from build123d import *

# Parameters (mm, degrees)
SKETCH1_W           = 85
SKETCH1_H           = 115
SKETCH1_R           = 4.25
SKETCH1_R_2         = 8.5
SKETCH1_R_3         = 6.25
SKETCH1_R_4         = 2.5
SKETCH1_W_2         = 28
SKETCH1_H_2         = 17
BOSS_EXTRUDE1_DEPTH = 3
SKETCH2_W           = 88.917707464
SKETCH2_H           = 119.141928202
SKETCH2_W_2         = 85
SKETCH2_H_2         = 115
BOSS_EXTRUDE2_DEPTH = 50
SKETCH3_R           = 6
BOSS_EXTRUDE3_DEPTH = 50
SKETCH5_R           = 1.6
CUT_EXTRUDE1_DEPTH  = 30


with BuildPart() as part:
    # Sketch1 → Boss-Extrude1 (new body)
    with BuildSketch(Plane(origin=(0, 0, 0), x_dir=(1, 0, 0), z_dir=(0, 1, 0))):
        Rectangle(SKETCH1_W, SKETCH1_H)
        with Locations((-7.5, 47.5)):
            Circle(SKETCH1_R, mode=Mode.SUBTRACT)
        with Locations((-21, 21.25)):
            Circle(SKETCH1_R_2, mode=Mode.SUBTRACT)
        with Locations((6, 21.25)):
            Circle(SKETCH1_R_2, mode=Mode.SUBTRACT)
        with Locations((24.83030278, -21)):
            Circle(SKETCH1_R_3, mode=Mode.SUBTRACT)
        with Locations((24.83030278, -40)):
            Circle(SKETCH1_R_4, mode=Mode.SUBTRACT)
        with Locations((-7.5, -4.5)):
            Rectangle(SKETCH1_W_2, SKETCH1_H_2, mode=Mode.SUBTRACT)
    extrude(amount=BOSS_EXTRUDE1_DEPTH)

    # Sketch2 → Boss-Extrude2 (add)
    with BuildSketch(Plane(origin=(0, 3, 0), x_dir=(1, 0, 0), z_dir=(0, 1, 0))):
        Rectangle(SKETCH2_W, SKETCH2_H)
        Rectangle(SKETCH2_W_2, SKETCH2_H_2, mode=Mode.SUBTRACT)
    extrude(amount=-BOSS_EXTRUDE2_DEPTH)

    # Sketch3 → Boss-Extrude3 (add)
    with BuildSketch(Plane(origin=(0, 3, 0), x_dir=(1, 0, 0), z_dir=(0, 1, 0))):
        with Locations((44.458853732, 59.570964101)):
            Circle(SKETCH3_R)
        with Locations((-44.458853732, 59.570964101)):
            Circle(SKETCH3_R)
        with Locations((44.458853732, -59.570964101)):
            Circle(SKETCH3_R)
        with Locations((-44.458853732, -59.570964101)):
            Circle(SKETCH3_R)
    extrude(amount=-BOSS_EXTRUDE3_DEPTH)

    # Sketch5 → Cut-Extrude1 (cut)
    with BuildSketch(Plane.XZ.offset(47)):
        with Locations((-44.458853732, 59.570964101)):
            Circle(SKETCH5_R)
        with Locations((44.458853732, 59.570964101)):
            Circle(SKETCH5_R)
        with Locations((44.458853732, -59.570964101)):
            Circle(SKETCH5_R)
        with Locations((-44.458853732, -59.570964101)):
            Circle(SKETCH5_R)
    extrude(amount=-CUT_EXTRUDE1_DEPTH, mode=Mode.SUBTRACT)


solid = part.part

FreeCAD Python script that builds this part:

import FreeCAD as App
import Part
import Sketcher
from FreeCAD import Vector
Q = App.Units.Quantity

doc = App.newDocument("Part")
params = doc.addObject("Spreadsheet::Sheet", "Params")
for row, (alias, value) in enumerate([
    ("sketch1_diameter", "5 mm"),
    ("sketch1_diameter2", "17 mm"),
    ("sketch1_diameter3", "12.5 mm"),
    ("sketch1_diameter4", "8.5 mm"),
    ("sketch1_width", "85 mm"),
    ("pad1_length", "3 mm"),
    ("sketch2_width", "85 mm"),
    ("sketch2_height", "115 mm"),
    ("pad2_length", "50 mm"),
    ("sketch3_diameter", "12 mm"),
    ("pad3_length", "50 mm"),
    ("sketch4_diameter", "3.2 mm"),
    ("pocket1_length", "30 mm"),
], start=1):
    params.set(f"A{row}", alias)
    params.set(f"B{row}", "=" + value)
    params.setAlias(f"B{row}", alias)

body = doc.addObject("PartDesign::Body", "Body")

sketch1 = doc.addObject("Sketcher::SketchObject", "Sketch")
body.addObject(sketch1)
sketch1.AttachmentSupport = (doc.XZ_Plane, [""])
sketch1.MapMode = "FlatFace"
sketch1.addGeometry([
    Part.LineSegment(Vector(-42.5, -57.5, 0), Vector(-42.5, 57.5, 0)),
    Part.LineSegment(Vector(-42.5, 57.5, 0), Vector(42.5, 57.5, 0)),
    Part.LineSegment(Vector(42.5, 57.5, 0), Vector(42.5, -57.5, 0)),
    Part.LineSegment(Vector(42.5, -57.5, 0), Vector(-42.5, -57.5, 0)),
    Part.LineSegment(Vector(6.5, 13, 0), Vector(-21.5, 13, 0)),
    Part.LineSegment(Vector(-21.5, 13, 0), Vector(-21.5, -4, 0)),
    Part.LineSegment(Vector(-21.5, -4, 0), Vector(6.5, -4, 0)),
    Part.LineSegment(Vector(6.5, -4, 0), Vector(6.5, 13, 0)),
    Part.Circle(Vector(24.8, 40, 0), Vector(0, 0, 1), 2.5),
    Part.Circle(Vector(24.8, 21, 0), Vector(0, 0, 1), 6.2),
    Part.Circle(Vector(-21, -21.2, 0), Vector(0, 0, 1), 8.5),
    Part.Circle(Vector(-7.5, -47.5, 0), Vector(0, 0, 1), 4.2),
    Part.Circle(Vector(6, -21.2, 0), Vector(0, 0, 1), 8.5),
], False)
sketch1.addConstraint([
    Sketcher.Constraint("Coincident", 0, 2, 1, 1),
    Sketcher.Constraint("Coincident", 1, 2, 2, 1),
    Sketcher.Constraint("Coincident", 2, 2, 3, 1),
    Sketcher.Constraint("Coincident", 3, 2, 0, 1),
    Sketcher.Constraint("Coincident", 4, 2, 5, 1),
    Sketcher.Constraint("Coincident", 5, 2, 6, 1),
    Sketcher.Constraint("Coincident", 6, 2, 7, 1),
    Sketcher.Constraint("Coincident", 7, 2, 4, 1),
    Sketcher.Constraint("Vertical", 0),
    Sketcher.Constraint("Horizontal", 1),
    Sketcher.Constraint("Vertical", 2),
    Sketcher.Constraint("Horizontal", 3),
    Sketcher.Constraint("Horizontal", 4),
    Sketcher.Constraint("Vertical", 5),
    Sketcher.Constraint("Horizontal", 6),
    Sketcher.Constraint("Vertical", 7),
    Sketcher.Constraint("Equal", 10, 12),
    Sketcher.Constraint("Symmetric", 0, 2, 2, 2, -1, 1),
    Sketcher.Constraint("Horizontal", 10, 3, 12, 3),
    Sketcher.Constraint("Vertical", 8, 3, 9, 3),
    Sketcher.Constraint("Diameter", 8, Q("5 mm")),
    Sketcher.Constraint("Diameter", 10, Q("17 mm")),
    Sketcher.Constraint("Diameter", 9, Q("12.5 mm")),
    Sketcher.Constraint("Diameter", 11, Q("8.5 mm")),
    Sketcher.Constraint("DistanceX", 1, 1, 1, 2, Q("85 mm")),
    Sketcher.Constraint("DistanceX", 4, 2, 4, 1, Q("28 mm")),
    Sketcher.Constraint("DistanceY", 0, 1, 0, 2, Q("115 mm")),
    Sketcher.Constraint("DistanceY", 5, 2, 5, 1, Q("17 mm")),
    Sketcher.Constraint("DistanceY", -1, 1, 8, 3, Q("40 mm")),
    Sketcher.Constraint("DistanceY", -1, 1, 9, 3, Q("21 mm")),
    Sketcher.Constraint("DistanceX", 10, 3, -1, 1, Q("21 mm")),
    Sketcher.Constraint("DistanceX", -1, 1, 12, 3, Q("6 mm")),
    Sketcher.Constraint("DistanceY", -1, 1, 4, 2, Q("13 mm")),
    Sketcher.Constraint("DistanceX", 0, 2, 11, 3, Q("35 mm")),
    Sketcher.Constraint("DistanceY", 11, 3, 0, 2, Q("105 mm")),
    Sketcher.Constraint("DistanceX", 0, 2, 4, 2, Q("21 mm")),
    Sketcher.Constraint("DistanceY", 10, 3, -1, 1, Q("21.25 mm")),
    Sketcher.Constraint("DistanceX", -1, 1, 8, 3, Q("24.830303 mm")),
])
sketch1.setExpression("Constraints[20]", "Params.sketch1_diameter")
sketch1.setExpression("Constraints[21]", "Params.sketch1_diameter2")
sketch1.setExpression("Constraints[22]", "Params.sketch1_diameter3")
sketch1.setExpression("Constraints[23]", "Params.sketch1_diameter4")
sketch1.setExpression("Constraints[24]", "Params.sketch1_width")
pad1 = doc.addObject("PartDesign::Pad", "Pad")
body.addObject(pad1)
pad1.Profile = sketch1
pad1.setExpression("Length", "Params.pad1_length")
pad1.Reversed = True

sketch2 = doc.addObject("Sketcher::SketchObject", "Sketch001")
body.addObject(sketch2)
sketch2.AttachmentSupport = (doc.XZ_Plane, [""])
sketch2.MapMode = "FlatFace"
sketch2.AttachmentOffset = App.Placement(Vector(0, 0, -3), App.Rotation())
sketch2.addGeometry([
    Part.LineSegment(Vector(-44, -60, 0), Vector(-44, 60, 0)),
    Part.LineSegment(Vector(-44, 60, 0), Vector(44, 60, 0)),
    Part.LineSegment(Vector(44, 60, 0), Vector(44, -60, 0)),
    Part.LineSegment(Vector(44, -60, 0), Vector(-44, -60, 0)),
    Part.LineSegment(Vector(42, 58, 0), Vector(-42, 58, 0)),
    Part.LineSegment(Vector(-42, 58, 0), Vector(-42, -58, 0)),
    Part.LineSegment(Vector(-42, -58, 0), Vector(42, -58, 0)),
    Part.LineSegment(Vector(42, -58, 0), Vector(42, 58, 0)),
], False)
sketch2.addConstraint([
    Sketcher.Constraint("Coincident", 0, 2, 1, 1),
    Sketcher.Constraint("Coincident", 1, 2, 2, 1),
    Sketcher.Constraint("Coincident", 2, 2, 3, 1),
    Sketcher.Constraint("Coincident", 3, 2, 0, 1),
    Sketcher.Constraint("Coincident", 4, 2, 5, 1),
    Sketcher.Constraint("Coincident", 5, 2, 6, 1),
    Sketcher.Constraint("Coincident", 6, 2, 7, 1),
    Sketcher.Constraint("Coincident", 7, 2, 4, 1),
    Sketcher.Constraint("Vertical", 0),
    Sketcher.Constraint("Horizontal", 1),
    Sketcher.Constraint("Vertical", 2),
    Sketcher.Constraint("Horizontal", 3),
    Sketcher.Constraint("Horizontal", 4),
    Sketcher.Constraint("Vertical", 5),
    Sketcher.Constraint("Horizontal", 6),
    Sketcher.Constraint("Vertical", 7),
    Sketcher.Constraint("Symmetric", 0, 2, 2, 2, -1, 1),
    Sketcher.Constraint("Symmetric", 4, 2, 6, 2, -1, 1),
    Sketcher.Constraint("DistanceX", 4, 2, 4, 1, Q("85 mm")),
    Sketcher.Constraint("DistanceY", 5, 2, 5, 1, Q("115 mm")),
    Sketcher.Constraint("DistanceY", 0, 1, 0, 2, Q("119.141928 mm")),
    Sketcher.Constraint("DistanceX", 1, 1, 1, 2, Q("88.917707 mm")),
])
sketch2.setExpression("Constraints[18]", "Params.sketch2_width")
sketch2.setExpression("Constraints[19]", "Params.sketch2_height")
pad2 = doc.addObject("PartDesign::Pad", "Pad001")
body.addObject(pad2)
pad2.Profile = sketch2
pad2.setExpression("Length", "Params.pad2_length")

sketch3 = doc.addObject("Sketcher::SketchObject", "Sketch002")
body.addObject(sketch3)
sketch3.AttachmentSupport = (doc.XZ_Plane, [""])
sketch3.MapMode = "FlatFace"
sketch3.AttachmentOffset = App.Placement(Vector(0, 0, -3), App.Rotation())
sketch3.addGeometry([
    Part.Circle(Vector(44, -60, 0), Vector(0, 0, 1), 6),
    Part.Circle(Vector(-44, -60, 0), Vector(0, 0, 1), 6),
    Part.Circle(Vector(44, 60, 0), Vector(0, 0, 1), 6),
    Part.Circle(Vector(-44, 60, 0), Vector(0, 0, 1), 6),
], False)
sketch3.addConstraint([
    Sketcher.Constraint("Equal", 0, 1),
    Sketcher.Constraint("Equal", 1, 2),
    Sketcher.Constraint("Equal", 2, 3),
    Sketcher.Constraint("Symmetric", 1, 3, 2, 3, -1, 1),
    Sketcher.Constraint("Symmetric", 0, 3, 3, 3, -1, 1),
    Sketcher.Constraint("Symmetric", 0, 3, 1, 3, -2),
    Sketcher.Constraint("Diameter", 0, Q("12 mm")),
    Sketcher.Constraint("DistanceY", 0, 3, 2, 3, Q("119.141928 mm")),
    Sketcher.Constraint("DistanceX", -1, 1, 0, 3, Q("44.458854 mm")),
])
sketch3.setExpression("Constraints[6]", "Params.sketch3_diameter")
pad3 = doc.addObject("PartDesign::Pad", "Pad002")
body.addObject(pad3)
pad3.Profile = sketch3
pad3.setExpression("Length", "Params.pad3_length")

sketch4 = doc.addObject("Sketcher::SketchObject", "Sketch003")
body.addObject(sketch4)
sketch4.AttachmentSupport = (doc.XZ_Plane, [""])
sketch4.MapMode = "FlatFace"
sketch4.AttachmentOffset = App.Placement(Vector(0, 0, 47), App.Rotation())
sketch4.addGeometry([
    Part.Circle(Vector(-44.5, 59.6, 0), Vector(0, 0, 1), 1.6),
    Part.Circle(Vector(44.5, 59.6, 0), Vector(0, 0, 1), 1.6),
    Part.Circle(Vector(44.5, -59.6, 0), Vector(0, 0, 1), 1.6),
    Part.Circle(Vector(-44.5, -59.6, 0), Vector(0, 0, 1), 1.6),
], False)
sketch4.addConstraint([
    Sketcher.Constraint("Equal", 0, 1),
    Sketcher.Constraint("Equal", 1, 2),
    Sketcher.Constraint("Equal", 2, 3),
    Sketcher.Constraint("Symmetric", 0, 3, 2, 3, -1, 1),
    Sketcher.Constraint("Symmetric", 1, 3, 3, 3, -1, 1),
    Sketcher.Constraint("Symmetric", 0, 3, 1, 3, -2),
    Sketcher.Constraint("Diameter", 0, Q("3.2 mm")),
    Sketcher.Constraint("DistanceY", 2, 3, 1, 3, Q("119.141928 mm")),
    Sketcher.Constraint("DistanceX", 0, 3, -1, 1, Q("44.458854 mm")),
])
sketch4.setExpression("Constraints[6]", "Params.sketch4_diameter")
pocket1 = doc.addObject("PartDesign::Pocket", "Pocket")
body.addObject(pocket1)
pocket1.Profile = sketch4
pocket1.setExpression("Length", "Params.pocket1_length")

doc.recompute()
